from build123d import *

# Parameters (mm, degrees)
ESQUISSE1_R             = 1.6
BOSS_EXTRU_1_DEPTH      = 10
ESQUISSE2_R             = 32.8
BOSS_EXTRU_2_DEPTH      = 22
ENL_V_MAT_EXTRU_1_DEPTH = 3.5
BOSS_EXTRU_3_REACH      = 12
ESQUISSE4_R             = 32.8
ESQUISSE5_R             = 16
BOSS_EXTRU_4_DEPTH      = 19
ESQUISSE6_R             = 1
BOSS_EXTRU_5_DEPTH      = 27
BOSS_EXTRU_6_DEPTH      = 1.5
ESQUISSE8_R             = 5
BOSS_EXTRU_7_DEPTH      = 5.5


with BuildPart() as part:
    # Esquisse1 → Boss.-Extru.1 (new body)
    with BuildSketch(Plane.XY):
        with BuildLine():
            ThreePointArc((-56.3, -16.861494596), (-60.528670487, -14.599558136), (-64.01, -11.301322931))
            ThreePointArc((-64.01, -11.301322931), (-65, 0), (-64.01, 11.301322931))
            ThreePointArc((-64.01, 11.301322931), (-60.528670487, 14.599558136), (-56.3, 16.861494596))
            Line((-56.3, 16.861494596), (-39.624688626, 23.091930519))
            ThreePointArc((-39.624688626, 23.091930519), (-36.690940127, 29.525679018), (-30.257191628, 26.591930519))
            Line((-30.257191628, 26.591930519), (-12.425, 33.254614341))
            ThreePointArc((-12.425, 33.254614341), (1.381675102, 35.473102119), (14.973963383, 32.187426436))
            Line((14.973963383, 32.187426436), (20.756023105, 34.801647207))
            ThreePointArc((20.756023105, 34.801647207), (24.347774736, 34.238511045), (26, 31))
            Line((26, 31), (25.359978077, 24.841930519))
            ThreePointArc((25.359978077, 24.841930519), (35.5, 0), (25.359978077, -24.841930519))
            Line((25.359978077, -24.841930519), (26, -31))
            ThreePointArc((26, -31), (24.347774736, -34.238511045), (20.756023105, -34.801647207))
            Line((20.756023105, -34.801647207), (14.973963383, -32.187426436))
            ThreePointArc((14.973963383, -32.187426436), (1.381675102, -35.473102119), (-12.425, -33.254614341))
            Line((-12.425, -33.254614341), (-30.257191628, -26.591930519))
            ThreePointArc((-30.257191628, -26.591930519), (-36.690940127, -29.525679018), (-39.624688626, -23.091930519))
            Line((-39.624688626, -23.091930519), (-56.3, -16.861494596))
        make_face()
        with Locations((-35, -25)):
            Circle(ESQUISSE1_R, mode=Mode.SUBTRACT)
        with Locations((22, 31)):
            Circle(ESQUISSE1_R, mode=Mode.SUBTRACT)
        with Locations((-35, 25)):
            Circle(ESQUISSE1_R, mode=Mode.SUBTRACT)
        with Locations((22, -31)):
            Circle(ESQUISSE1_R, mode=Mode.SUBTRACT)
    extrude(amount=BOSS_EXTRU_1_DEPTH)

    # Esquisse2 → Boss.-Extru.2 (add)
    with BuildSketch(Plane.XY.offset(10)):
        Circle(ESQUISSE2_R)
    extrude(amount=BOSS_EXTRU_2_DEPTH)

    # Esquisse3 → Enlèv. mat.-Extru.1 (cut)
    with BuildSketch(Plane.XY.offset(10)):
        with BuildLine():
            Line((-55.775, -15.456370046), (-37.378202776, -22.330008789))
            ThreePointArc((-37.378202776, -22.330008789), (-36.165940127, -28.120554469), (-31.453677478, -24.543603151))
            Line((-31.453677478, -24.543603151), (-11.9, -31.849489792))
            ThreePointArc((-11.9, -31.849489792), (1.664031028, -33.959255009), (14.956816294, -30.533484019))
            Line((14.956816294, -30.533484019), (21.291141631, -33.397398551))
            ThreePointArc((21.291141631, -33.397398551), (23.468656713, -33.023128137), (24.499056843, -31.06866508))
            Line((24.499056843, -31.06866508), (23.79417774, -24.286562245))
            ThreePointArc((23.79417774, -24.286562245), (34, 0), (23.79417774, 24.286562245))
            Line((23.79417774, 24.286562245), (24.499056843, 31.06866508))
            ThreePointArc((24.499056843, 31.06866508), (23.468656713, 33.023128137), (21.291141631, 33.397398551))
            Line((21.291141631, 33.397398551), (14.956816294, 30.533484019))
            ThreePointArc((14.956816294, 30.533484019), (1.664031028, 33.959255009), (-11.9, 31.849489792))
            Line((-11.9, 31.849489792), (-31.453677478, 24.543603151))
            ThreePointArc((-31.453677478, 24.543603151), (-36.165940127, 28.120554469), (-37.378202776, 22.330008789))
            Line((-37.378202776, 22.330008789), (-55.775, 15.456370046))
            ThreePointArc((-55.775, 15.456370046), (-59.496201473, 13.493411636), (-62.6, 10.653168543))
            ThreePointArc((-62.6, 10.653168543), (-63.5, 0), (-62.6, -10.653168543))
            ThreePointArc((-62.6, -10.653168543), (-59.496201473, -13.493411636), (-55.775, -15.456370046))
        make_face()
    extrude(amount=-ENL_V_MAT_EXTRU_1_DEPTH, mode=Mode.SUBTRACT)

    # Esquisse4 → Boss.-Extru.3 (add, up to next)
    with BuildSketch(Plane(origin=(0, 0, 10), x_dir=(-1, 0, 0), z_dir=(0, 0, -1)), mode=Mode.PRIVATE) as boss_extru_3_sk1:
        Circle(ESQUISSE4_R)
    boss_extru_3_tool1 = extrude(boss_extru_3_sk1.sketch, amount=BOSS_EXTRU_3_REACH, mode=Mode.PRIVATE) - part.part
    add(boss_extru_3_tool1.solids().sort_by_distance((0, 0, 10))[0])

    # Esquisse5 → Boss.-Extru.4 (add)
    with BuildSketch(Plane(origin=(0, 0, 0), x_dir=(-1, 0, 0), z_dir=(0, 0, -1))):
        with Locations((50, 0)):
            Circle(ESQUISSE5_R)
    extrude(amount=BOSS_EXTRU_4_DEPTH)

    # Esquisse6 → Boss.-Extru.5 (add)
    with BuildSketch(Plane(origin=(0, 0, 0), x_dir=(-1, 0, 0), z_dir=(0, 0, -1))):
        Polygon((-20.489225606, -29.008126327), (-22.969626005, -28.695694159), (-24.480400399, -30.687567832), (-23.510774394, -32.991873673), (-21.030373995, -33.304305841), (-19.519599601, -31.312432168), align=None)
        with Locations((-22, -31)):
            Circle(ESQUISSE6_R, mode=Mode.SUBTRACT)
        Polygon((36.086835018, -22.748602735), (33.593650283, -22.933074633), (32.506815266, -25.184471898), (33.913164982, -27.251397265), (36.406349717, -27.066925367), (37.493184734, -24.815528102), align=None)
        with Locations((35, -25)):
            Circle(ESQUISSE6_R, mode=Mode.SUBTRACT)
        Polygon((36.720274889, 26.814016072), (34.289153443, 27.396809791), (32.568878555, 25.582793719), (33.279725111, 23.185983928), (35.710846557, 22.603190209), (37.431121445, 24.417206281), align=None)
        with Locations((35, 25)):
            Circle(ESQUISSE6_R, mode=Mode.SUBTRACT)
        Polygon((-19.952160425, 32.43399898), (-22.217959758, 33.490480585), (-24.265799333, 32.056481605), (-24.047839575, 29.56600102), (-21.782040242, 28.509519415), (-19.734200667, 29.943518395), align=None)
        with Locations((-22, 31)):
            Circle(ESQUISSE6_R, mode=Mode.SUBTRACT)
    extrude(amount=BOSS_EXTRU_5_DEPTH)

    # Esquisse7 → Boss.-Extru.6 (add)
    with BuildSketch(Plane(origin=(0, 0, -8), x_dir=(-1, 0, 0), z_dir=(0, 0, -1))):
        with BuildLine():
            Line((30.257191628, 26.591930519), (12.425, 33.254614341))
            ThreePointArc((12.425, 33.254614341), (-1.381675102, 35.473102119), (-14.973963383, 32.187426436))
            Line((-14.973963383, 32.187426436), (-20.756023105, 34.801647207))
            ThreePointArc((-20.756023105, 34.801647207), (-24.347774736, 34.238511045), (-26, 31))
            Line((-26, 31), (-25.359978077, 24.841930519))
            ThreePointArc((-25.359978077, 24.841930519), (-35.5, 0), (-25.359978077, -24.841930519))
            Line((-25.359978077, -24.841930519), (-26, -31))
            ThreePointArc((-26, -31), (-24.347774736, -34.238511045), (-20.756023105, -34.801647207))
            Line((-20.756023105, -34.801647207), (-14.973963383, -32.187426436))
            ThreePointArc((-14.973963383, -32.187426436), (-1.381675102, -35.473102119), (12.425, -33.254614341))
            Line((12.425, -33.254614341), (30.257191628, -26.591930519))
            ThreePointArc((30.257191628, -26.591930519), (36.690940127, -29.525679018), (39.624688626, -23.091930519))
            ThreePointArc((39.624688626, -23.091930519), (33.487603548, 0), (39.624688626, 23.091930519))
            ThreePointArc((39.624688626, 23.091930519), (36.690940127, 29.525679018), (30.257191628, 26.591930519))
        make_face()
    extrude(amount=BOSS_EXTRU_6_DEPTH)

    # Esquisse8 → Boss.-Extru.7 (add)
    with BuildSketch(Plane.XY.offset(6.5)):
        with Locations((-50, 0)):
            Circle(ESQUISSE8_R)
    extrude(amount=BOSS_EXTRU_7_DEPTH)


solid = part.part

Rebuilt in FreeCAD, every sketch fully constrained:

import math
import FreeCAD as App
import Part
import Sketcher
Q = App.Units.Quantity

doc = App.newDocument("Part")
params = doc.addObject("Spreadsheet::Sheet", "Params")
for row, (alias, value) in enumerate([
    ("sketch1_radius", "18 mm"),
    ("sketch1_radius2", "5 mm"),
    ("sketch1_radius3", "4 mm"),
    ("sketch1_radius4", "65 mm"),
    ("sketch1_diameter", "3.2 mm"),
    ("pad1_length", "10 mm"),
    ("sketch2_diameter", "65.6 mm"),
    ("pad2_length", "22 mm"),
    ("sketch3_radius", "34 mm"),
    ("sketch3_radius2", "3.5 mm"),
    ("sketch3_radius3", "2.5 mm"),
    ("sketch3_radius4", "16.5 mm"),
    ("sketch3_radius5", "63.5 mm"),
    ("pocket1_length", "3.5 mm"),
    ("sketch4_diameter", "65.6 mm"),
    ("sketch5_diameter", "32 mm"),
    ("pad4_length", "19 mm"),
    ("sketch6_diameter", "2 mm"),
    ("sketch6_length", "2.5 mm"),
    ("pad5_length", "27 mm"),
    ("sketch7_radius", "4 mm"),
    ("sketch7_radius2", "5 mm"),
    ("sketch7_radius3", "35.5 mm"),
    ("pad6_length", "1.5 mm"),
    ("sketch8_diameter", "10 mm"),
    ("pad7_length", "5.5 mm"),
], start=1):
    params.set(f"A{row}", alias)
    params.set(f"B{row}", "=" + value)
    params.setAlias(f"B{row}", alias)

body = doc.addObject("PartDesign::Body", "Body")
body.AllowCompound = True

# Sketch on XY plane
sketch1 = body.newObject("Sketcher::SketchObject", "Sketch")
sketch1.AttachmentSupport = (doc.getObject("XY_Plane"), [""])
sketch1.MapMode = "FlatFace"
sketch1.addGeometry([
    Part.ArcOfCircle(Part.Circle(App.Vector(-50, 0, 0), App.Vector(0, 0, 1), 18), math.radians(-141.108229), math.radians(-110.487315)),  # 0
    Part.LineSegment(App.Vector(-56.3, -16.861495, 0), App.Vector(-39.624689, -23.091931, 0)),  # 1
    Part.ArcOfCircle(Part.Circle(App.Vector(-34.94094, -24.841931, 0), App.Vector(0, 0, 1), 5), math.radians(159.512685), math.radians(339.512685)),  # 2
    Part.LineSegment(App.Vector(-30.257192, -26.591931, 0), App.Vector(-12.425, -33.254614, 0)),  # 3
    Part.ArcOfCircle(Part.Circle(App.Vector(0, 0, 0), App.Vector(0, 0, 1), 35.5), math.radians(-110.487315), math.radians(-65.051606)),  # 4
    Part.LineSegment(App.Vector(14.973963, -32.187426, 0), App.Vector(20.756023, -34.801647, 0)),  # 5
    Part.ArcOfCircle(Part.Circle(App.Vector(22, -31, 0), App.Vector(0, 0, 1), 4), math.radians(-108.119157), math.radians(0)),  # 6
    Part.LineSegment(App.Vector(26, -31, 0), App.Vector(25.359978, -24.841931, 0)),  # 7
    Part.ArcOfCircle(Part.Circle(App.Vector(0, 0, 0), App.Vector(0, 0, 1), 35.5), math.radians(-44.40877), math.radians(44.40877)),  # 8
    Part.LineSegment(App.Vector(25.359978, 24.841931, 0), App.Vector(26, 31, 0)),  # 9
    Part.ArcOfCircle(Part.Circle(App.Vector(22, 31, 0), App.Vector(0, 0, 1), 4), math.radians(0), math.radians(108.119157)),  # 10
    Part.LineSegment(App.Vector(20.756023, 34.801647, 0), App.Vector(14.973963, 32.187426, 0)),  # 11
    Part.ArcOfCircle(Part.Circle(App.Vector(0, 0, 0), App.Vector(0, 0, 1), 35.5), math.radians(65.051606), math.radians(110.487315)),  # 12
    Part.LineSegment(App.Vector(-12.425, 33.254614, 0), App.Vector(-30.257192, 26.591931, 0)),  # 13
    Part.ArcOfCircle(Part.Circle(App.Vector(-34.94094, 24.841931, 0), App.Vector(0, 0, 1), 5), math.radians(20.487315), math.radians(200.487315)),  # 14
    Part.LineSegment(App.Vector(-39.624689, 23.091931, 0), App.Vector(-56.3, 16.861495, 0)),  # 15
    Part.ArcOfCircle(Part.Circle(App.Vector(-50, 0, 0), App.Vector(0, 0, 1), 18), math.radians(110.487315), math.radians(141.108229)),  # 16
    Part.ArcOfCircle(Part.Circle(App.Vector(0, 0, 0), App.Vector(0, 0, 1), 65), math.radians(169.987297), math.radians(190.012703)),  # 17
    Part.Circle(App.Vector(22, -31, 0), App.Vector(0, 0, 1), 1.6),  # 18
    Part.Circle(App.Vector(-35, -25, 0), App.Vector(0, 0, 1), 1.6),  # 19
    Part.Circle(App.Vector(22, 31, 0), App.Vector(0, 0, 1), 1.6),  # 20
    Part.Circle(App.Vector(-35, 25, 0), App.Vector(0, 0, 1), 1.6),  # 21
], False)
sketch1.addConstraint([
    Sketcher.Constraint("Tangent", 0, 2, 1, 1),
    Sketcher.Constraint("Coincident", 1, 2, 2, 1),
    Sketcher.Constraint("Coincident", 2, 2, 3, 1),
    Sketcher.Constraint("Tangent", 3, 2, 4, 1),
    Sketcher.Constraint("Coincident", 4, 2, 5, 1),
    Sketcher.Constraint("Coincident", 5, 2, 6, 1),
    Sketcher.Constraint("Coincident", 6, 2, 7, 1),
    Sketcher.Constraint("Coincident", 7, 2, 8, 1),
    Sketcher.Constraint("Coincident", 8, 2, 9, 1),
    Sketcher.Constraint("Coincident", 9, 2, 10, 1),
    Sketcher.Constraint("Coincident", 10, 2, 11, 1),
    Sketcher.Constraint("Coincident", 11, 2, 12, 1),
    Sketcher.Constraint("Tangent", 12, 2, 13, 1),
    Sketcher.Constraint("Coincident", 13, 2, 14, 1),
    Sketcher.Constraint("Coincident", 14, 2, 15, 1),
    Sketcher.Constraint("Tangent", 15, 2, 16, 1),
    Sketcher.Constraint("Coincident", 16, 2, 17, 1),
    Sketcher.Constraint("Coincident", 17, 2, 0, 1),
    Sketcher.Constraint("Coincident", 4, 3, -1, 1),
    Sketcher.Constraint("Coincident", 8, 3, -1, 1),
    Sketcher.Constraint("Coincident", 12, 3, -1, 1),
    Sketcher.Constraint("Coincident", 17, 3, -1, 1),
    Sketcher.Constraint("Coincident", 16, 3, 0, 3),
    Sketcher.Constraint("Coincident", 18, 3, 6, 3),
    Sketcher.Constraint("Coincident", 20, 3, 10, 3),
    Sketcher.Constraint("Equal", 4, 8),
    Sketcher.Constraint("Equal", 6, 10),
    Sketcher.Constraint("Equal", 8, 12),
    Sketcher.Constraint("Equal", 2, 14),
    Sketcher.Constraint("Equal", 0, 16),
    Sketcher.Constraint("Equal", 18, 19),
    Sketcher.Constraint("Equal", 19, 20),
    Sketcher.Constraint("Equal", 20, 21),
    Sketcher.Constraint("Symmetric", 6, 3, 10, 3, -1),
    Sketcher.Constraint("Symmetric", 2, 3, 14, 3, -1),
    Sketcher.Constraint("Symmetric", 19, 3, 21, 3, -1),
    Sketcher.Constraint("Symmetric", 0, 2, 15, 2, -1),
    Sketcher.Constraint("Parallel", 1, 3),
    Sketcher.Constraint("Parallel", 13, 15),
    Sketcher.Constraint("Horizontal", 18, 3, 6, 2),
    Sketcher.Constraint("Horizontal", 2, 3, 7, 2),
    Sketcher.Constraint("Horizontal", 14, 3, 8, 2),
    Sketcher.Constraint("Horizontal", 20, 3, 9, 2),
    Sketcher.Constraint("Vertical", 5, 2, 10, 2),
    Sketcher.Constraint("Vertical", 4, 2, 11, 2),
    Sketcher.Constraint("Radius", 0, Q("18 mm")),
    Sketcher.Constraint("Radius", 2, Q("5 mm")),
    Sketcher.Constraint("Radius", 6, Q("4 mm")),
    Sketcher.Constraint("Radius", 17, Q("65 mm")),
    Sketcher.Constraint("Diameter", 18, Q("3.2 mm")),
    Sketcher.Constraint("Radius", 4, Q("35.5 mm")),
    Sketcher.Constraint("DistanceX", 0, 3, -1, 1, Q("50 mm")),
    Sketcher.Constraint("DistanceX", -1, 1, 6, 3, Q("22 mm")),
    Sketcher.Constraint("DistanceY", 6, 3, -1, 1, Q("31 mm")),
    Sketcher.Constraint("DistanceX", 19, 3, -1, 1, Q("35 mm")),
    Sketcher.Constraint("DistanceY", 19, 3, -1, 1, Q("25 mm")),
    Sketcher.Constraint("DistanceX", 0, 2, -1, 1, Q("56.3 mm")),
    Sketcher.Constraint("DistanceY", 2, 3, 1, 2, Q("1.75 mm")),
    Sketcher.Constraint("Distance", 3, Q("19.036239 mm")),
    Sketcher.Constraint("Distance", 5, Q("6.345578 mm")),
    Sketcher.Constraint("DistanceX", 4, 2, 5, 2, Q("5.78206 mm")),
])
sketch1.setExpression("Constraints[45]", "Params.sketch1_radius")
sketch1.setExpression("Constraints[46]", "Params.sketch1_radius2")
sketch1.setExpression("Constraints[47]", "Params.sketch1_radius3")
sketch1.setExpression("Constraints[48]", "Params.sketch1_radius4")
sketch1.setExpression("Constraints[49]", "Params.sketch1_diameter")
pad1 = body.newObject("PartDesign::Pad", "Pad")
pad1.Profile = sketch1
pad1.setExpression("Length", "Params.pad1_length")

# Sketch on XY plane
sketch2 = body.newObject("Sketcher::SketchObject", "Sketch001")
sketch2.AttachmentSupport = (doc.getObject("XY_Plane"), [""])
sketch2.MapMode = "FlatFace"
sketch2.AttachmentOffset = App.Placement(App.Vector(0, 0, 10), App.Rotation())
sketch2.addGeometry(Part.Circle(App.Vector(0, 0, 0), App.Vector(0, 0, 1), 32.8), False)
sketch2.addConstraint([
    Sketcher.Constraint("Coincident", 0, 3, -1, 1),
    Sketcher.Constraint("Diameter", 0, Q("65.6 mm")),
])
sketch2.setExpression("Constraints[1]", "Params.sketch2_diameter")
pad2 = body.newObject("PartDesign::Pad", "Pad001")
pad2.Profile = sketch2
pad2.setExpression("Length", "Params.pad2_length")

# Sketch on XY plane
sketch3 = body.newObject("Sketcher::SketchObject", "Sketch002")
sketch3.AttachmentSupport = (doc.getObject("XY_Plane"), [""])
sketch3.MapMode = "FlatFace"
sketch3.AttachmentOffset = App.Placement(App.Vector(0, 0, 10), App.Rotation())
sketch3.addGeometry([
    Part.LineSegment(App.Vector(-55.775, -15.45637, 0), App.Vector(-37.378203, -22.330009, 0)),  # 0
    Part.ArcOfCircle(Part.Circle(App.Vector(-34.94094, -24.841931, 0), App.Vector(0, 0, 1), 3.5), math.radians(134.135751), math.radians(364.889618)),  # 1
    Part.LineSegment(App.Vector(-31.453677, -24.543603, 0), App.Vector(-11.9, -31.84949, 0)),  # 2
    Part.ArcOfCircle(Part.Circle(App.Vector(0, 0, 0), App.Vector(0, 0, 1), 34), math.radians(-110.487315), math.radians(-63.902093)),  # 3
    Part.LineSegment(App.Vector(14.956816, -30.533484, 0), App.Vector(21.291142, -33.397399, 0)),  # 4
    Part.ArcOfCircle(Part.Circle(App.Vector(22, -31, 0), App.Vector(0, 0, 1), 2.5), math.radians(-106.471797), math.radians(-1.573886)),  # 5
    Part.LineSegment(App.Vector(24.499057, -31.068665, 0), App.Vector(23.794178, -24.286562, 0)),  # 6
    Part.ArcOfCircle(Part.Circle(App.Vector(0, 0, 0), App.Vector(0, 0, 1), 34), math.radians(-45.586733), math.radians(45.586733)),  # 7
    Part.LineSegment(App.Vector(23.794178, 24.286562, 0), App.Vector(24.499057, 31.068665, 0)),  # 8
    Part.ArcOfCircle(Part.Circle(App.Vector(22, 31, 0), App.Vector(0, 0, 1), 2.5), math.radians(1.573886), math.radians(106.471797)),  # 9
    Part.LineSegment(App.Vector(21.291142, 33.397399, 0), App.Vector(14.956816, 30.533484, 0)),  # 10
    Part.ArcOfCircle(Part.Circle(App.Vector(0, 0, 0), App.Vector(0, 0, 1), 34), math.radians(63.902093), math.radians(110.487315)),  # 11
    Part.LineSegment(App.Vector(-11.9, 31.84949, 0), App.Vector(-31.453677, 24.543603, 0)),  # 12
    Part.ArcOfCircle(Part.Circle(App.Vector(-34.94094, 24.841931, 0), App.Vector(0, 0, 1), 3.5), math.radians(-4.889618), math.radians(225.864249)),  # 13
    Part.LineSegment(App.Vector(-37.378203, 22.330009, 0), App.Vector(-55.775, 15.45637, 0)),  # 14
    Part.ArcOfCircle(Part.Circle(App.Vector(-50, 0, 0), App.Vector(0, 0, 1), 16.5), math.radians(110.487315), math.radians(139.785829)),  # 15
    Part.ArcOfCircle(Part.Circle(App.Vector(0, 0, 0), App.Vector(0, 0, 1), 63.5), math.radians(170.34202), math.radians(189.65798)),  # 16
    Part.ArcOfCircle(Part.Circle(App.Vector(-50, 0, 0), App.Vector(0, 0, 1), 16.5), math.radians(-139.785829), math.radians(-110.487315)),  # 17
], False)
sketch3.addConstraint([
    Sketcher.Constraint("Coincident", 0, 2, 1, 1),
    Sketcher.Constraint("Coincident", 1, 2, 2, 1),
    Sketcher.Constraint("Tangent", 2, 2, 3, 1),
    Sketcher.Constraint("Coincident", 3, 2, 4, 1),
    Sketcher.Constraint("Coincident", 4, 2, 5, 1),
    Sketcher.Constraint("Coincident", 5, 2, 6, 1),
    Sketcher.Constraint("Coincident", 6, 2, 7, 1),
    Sketcher.Constraint("Coincident", 7, 2, 8, 1),
    Sketcher.Constraint("Coincident", 8, 2, 9, 1),
    Sketcher.Constraint("Coincident", 9, 2, 10, 1),
    Sketcher.Constraint("Coincident", 10, 2, 11, 1),
    Sketcher.Constraint("Tangent", 11, 2, 12, 1),
    Sketcher.Constraint("Coincident", 12, 2, 13, 1),
    Sketcher.Constraint("Coincident", 13, 2, 14, 1),
    Sketcher.Constraint("Tangent", 14, 2, 15, 1),
    Sketcher.Constraint("Coincident", 15, 2, 16, 1),
    Sketcher.Constraint("Coincident", 16, 2, 17, 1),
    Sketcher.Constraint("Tangent", 17, 2, 0, 1),
    Sketcher.Constraint("Coincident", 3, 3, -1, 1),
    Sketcher.Constraint("Coincident", 7, 3, -1, 1),
    Sketcher.Constraint("Coincident", 11, 3, -1, 1),
    Sketcher.Constraint("Coincident", 16, 3, -1, 1),
    Sketcher.Constraint("Coincident", 17, 3, 15, 3),
    Sketcher.Constraint("Equal", 3, 7),
    Sketcher.Constraint("Equal", 5, 9),
    Sketcher.Constraint("Equal", 7, 11),
    Sketcher.Constraint("Equal", 1, 13),
    Sketcher.Constraint("Equal", 15, 17),
    Sketcher.Constraint("Symmetric", 5, 3, 9, 3, -1),
    Sketcher.Constraint("Symmetric", 1, 3, 13, 3, -1),
    Sketcher.Constraint("Symmetric", 14, 2, 17, 2, -1),
    Sketcher.Constraint("Parallel", 0, 2),
    Sketcher.Constraint("Parallel", 12, 14),
    Sketcher.Constraint("Vertical", 6, 2, 7, 2),
    Sketcher.Constraint("Vertical", 5, 2, 8, 2),
    Sketcher.Constraint("Vertical", 4, 2, 9, 2),
    Sketcher.Constraint("Vertical", 3, 2, 10, 2),
    Sketcher.Constraint("Radius", 3, Q("34 mm")),
    Sketcher.Constraint("Radius", 1, Q("3.5 mm")),
    Sketcher.Constraint("Radius", 5, Q("2.5 mm")),
    Sketcher.Constraint("Radius", 15, Q("16.5 mm")),
    Sketcher.Constraint("Radius", 16, Q("63.5 mm")),
    Sketcher.Constraint("DistanceX", -1, 1, 5, 3, Q("22 mm")),
    Sketcher.Constraint("DistanceY", 5, 3, -1, 1, Q("31 mm")),
    Sketcher.Constraint("DistanceX", 15, 3, -1, 1, Q("50 mm")),
    Sketcher.Constraint("DistanceX", 2, 2, -1, 1, Q("11.9 mm")),
    Sketcher.Constraint("DistanceY", 4, 2, -1, 1, Q("33.397399 mm")),
    Sketcher.Constraint("Distance", 2, Q("20.873962 mm")),
    Sketcher.Constraint("DistanceX", 1, 3, -1, 1, Q("34.94094 mm")),
    Sketcher.Constraint("DistanceX", 3, 2, 5, 2, Q("9.542241 mm")),
    Sketcher.Constraint("DistanceY", 5, 2, 3, 2, Q("0.535181 mm")),
    Sketcher.Constraint("DistanceX", 6, 2, 5, 2, Q("0.704879 mm")),
])
sketch3.setExpression("Constraints[37]", "Params.sketch3_radius")
sketch3.setExpression("Constraints[38]", "Params.sketch3_radius2")
sketch3.setExpression("Constraints[39]", "Params.sketch3_radius3")
sketch3.setExpression("Constraints[40]", "Params.sketch3_radius4")
sketch3.setExpression("Constraints[41]", "Params.sketch3_radius5")
pocket1 = body.newObject("PartDesign::Pocket", "Pocket")
pocket1.Profile = sketch3
pocket1.setExpression("Length", "Params.pocket1_length")

# Sketch on XY plane
sketch4 = body.newObject("Sketcher::SketchObject", "Sketch003")
sketch4.AttachmentSupport = (doc.getObject("XY_Plane"), [""])
sketch4.MapMode = "FlatFace"
sketch4.AttachmentOffset = App.Placement(App.Vector(0, 0, 10), App.Rotation())
sketch4.addGeometry(Part.Circle(App.Vector(0, 0, 0), App.Vector(0, 0, 1), 32.8), False)
sketch4.addConstraint([
    Sketcher.Constraint("Coincident", 0, 3, -1, 1),
    Sketcher.Constraint("Diameter", 0, Q("65.6 mm")),
])
sketch4.setExpression("Constraints[1]", "Params.sketch4_diameter")
pad3 = body.newObject("PartDesign::Pad", "Pad002")
pad3.Profile = sketch4
pad3.Type = "UpToFirst"
pad3.Reversed = True

# Sketch on XY plane
sketch5 = body.newObject("Sketcher::SketchObject", "Sketch004")
sketch5.AttachmentSupport = (doc.getObject("XY_Plane"), [""])
sketch5.MapMode = "FlatFace"
sketch5.addGeometry(Part.Circle(App.Vector(-50, 0, 0), App.Vector(0, 0, 1), 16), False)
sketch5.addConstraint([
    Sketcher.Constraint("PointOnObject", 0, 3, -1),
    Sketcher.Constraint("Diameter", 0, Q("32 mm")),
    Sketcher.Constraint("DistanceX", 0, 3, -1, 1, Q("50 mm")),
])
sketch5.setExpression("Constraints[1]", "Params.sketch5_diameter")
pad4 = body.newObject("PartDesign::Pad", "Pad003")
pad4.Profile = sketch5
pad4.setExpression("Length", "Params.pad4_length")
pad4.Reversed = True

# Sketch on XY plane
sketch6 = body.newObject("Sketcher::SketchObject", "Sketch005")
sketch6.AttachmentSupport = (doc.getObject("XY_Plane"), [""])
sketch6.MapMode = "FlatFace"
sketch6.addGeometry([
    Part.LineSegment(App.Vector(20.489226, -29.008126, 0), App.Vector(22.969626, -28.695694, 0)),  # 0
    Part.LineSegment(App.Vector(22.969626, -28.695694, 0), App.Vector(24.4804, -30.687568, 0)),  # 1
    Part.LineSegment(App.Vector(24.4804, -30.687568, 0), App.Vector(23.510774, -32.991874, 0)),  # 2
    Part.LineSegment(App.Vector(23.510774, -32.991874, 0), App.Vector(21.030374, -33.304306, 0)),  # 3
    Part.LineSegment(App.Vector(21.030374, -33.304306, 0), App.Vector(19.5196, -31.312432, 0)),  # 4
    Part.LineSegment(App.Vector(19.5196, -31.312432, 0), App.Vector(20.489226, -29.008126, 0)),  # 5
    Part.Circle(App.Vector(22, -31, 0), App.Vector(0, 0, 1), 1),  # 6
    Part.LineSegment(App.Vector(-36.086835, -22.748603, 0), App.Vector(-33.59365, -22.933075, 0)),  # 7
    Part.LineSegment(App.Vector(-33.59365, -22.933075, 0), App.Vector(-32.506815, -25.184472, 0)),  # 8
    Part.LineSegment(App.Vector(-32.506815, -25.184472, 0), App.Vector(-33.913165, -27.251397, 0)),  # 9
    Part.LineSegment(App.Vector(-33.913165, -27.251397, 0), App.Vector(-36.40635, -27.066925, 0)),  # 10
    Part.LineSegment(App.Vector(-36.40635, -27.066925, 0), App.Vector(-37.493185, -24.815528, 0)),  # 11
    Part.LineSegment(App.Vector(-37.493185, -24.815528, 0), App.Vector(-36.086835, -22.748603, 0)),  # 12
    Part.Circle(App.Vector(-35, -25, 0), App.Vector(0, 0, 1), 1),  # 13
    Part.LineSegment(App.Vector(-36.720275, 26.814016, 0), App.Vector(-34.289153, 27.39681, 0)),  # 14
    Part.LineSegment(App.Vector(-34.289153, 27.39681, 0), App.Vector(-32.568879, 25.582794, 0)),  # 15
    Part.LineSegment(App.Vector(-32.568879, 25.582794, 0), App.Vector(-33.279725, 23.185984, 0)),  # 16
    Part.LineSegment(App.Vector(-33.279725, 23.185984, 0), App.Vector(-35.710847, 22.60319, 0)),  # 17
    Part.LineSegment(App.Vector(-35.710847, 22.60319, 0), App.Vector(-37.431121, 24.417206, 0)),  # 18
    Part.LineSegment(App.Vector(-37.431121, 24.417206, 0), App.Vector(-36.720275, 26.814016, 0)),  # 19
    Part.Circle(App.Vector(-35, 25, 0), App.Vector(0, 0, 1), 1),  # 20
    Part.LineSegment(App.Vector(19.95216, 32.433999, 0), App.Vector(22.21796, 33.490481, 0)),  # 21
    Part.LineSegment(App.Vector(22.21796, 33.490481, 0), App.Vector(24.265799, 32.056482, 0)),  # 22
    Part.LineSegment(App.Vector(24.265799, 32.056482, 0), App.Vector(24.04784, 29.566001, 0)),  # 23
    Part.LineSegment(App.Vector(24.04784, 29.566001, 0), App.Vector(21.78204, 28.509519, 0)),  # 24
    Part.LineSegment(App.Vector(21.78204, 28.509519, 0), App.Vector(19.734201, 29.943518, 0)),  # 25
    Part.LineSegment(App.Vector(19.734201, 29.943518, 0), App.Vector(19.95216, 32.433999, 0)),  # 26
    Part.Circle(App.Vector(22, 31, 0), App.Vector(0, 0, 1), 1),  # 27
], False)
sketch6.addConstraint([
    Sketcher.Constraint("Coincident", 0, 2, 1, 1),
    Sketcher.Constraint("Coincident", 1, 2, 2, 1),
    Sketcher.Constraint("Coincident", 2, 2, 3, 1),
    Sketcher.Constraint("Coincident", 3, 2, 4, 1),
    Sketcher.Constraint("Coincident", 4, 2, 5, 1),
    Sketcher.Constraint("Coincident", 5, 2, 0, 1),
    Sketcher.Constraint("Coincident", 7, 2, 8, 1),
    Sketcher.Constraint("Coincident", 8, 2, 9, 1),
    Sketcher.Constraint("Coincident", 9, 2, 10, 1),
    Sketcher.Constraint("Coincident", 10, 2, 11, 1),
    Sketcher.Constraint("Coincident", 11, 2, 12, 1),
    Sketcher.Constraint("Coincident", 12, 2, 7, 1),
    Sketcher.Constraint("Coincident", 14, 2, 15, 1),
    Sketcher.Constraint("Coincident", 15, 2, 16, 1),
    Sketcher.Constraint("Coincident", 16, 2, 17, 1),
    Sketcher.Constraint("Coincident", 17, 2, 18, 1),
    Sketcher.Constraint("Coincident", 18, 2, 19, 1),
    Sketcher.Constraint("Coincident", 19, 2, 14, 1),
    Sketcher.Constraint("Coincident", 21, 2, 22, 1),
    Sketcher.Constraint("Coincident", 22, 2, 23, 1),
    Sketcher.Constraint("Coincident", 23, 2, 24, 1),
    Sketcher.Constraint("Coincident", 24, 2, 25, 1),
    Sketcher.Constraint("Coincident", 25, 2, 26, 1),
    Sketcher.Constraint("Coincident", 26, 2, 21, 1),
    Sketcher.Constraint("Equal", 6, 13),
    Sketcher.Constraint("Equal", 13, 20),
    Sketcher.Constraint("Equal", 20, 27),
    Sketcher.Constraint("Symmetric", 13, 3, 20, 3, -1),
    Sketcher.Constraint("Symmetric", 6, 3, 27, 3, -1),
    Sketcher.Constraint("Parallel", 0, 3),
    Sketcher.Constraint("Parallel", 1, 4),
    Sketcher.Constraint("Parallel", 2, 5),
    Sketcher.Constraint("Parallel", 7, 10),
    Sketcher.Constraint("Parallel", 8, 11),
    Sketcher.Constraint("Parallel", 9, 12),
    Sketcher.Constraint("Parallel", 14, 17),
    Sketcher.Constraint("Parallel", 15, 18),
    Sketcher.Constraint("Parallel", 16, 19),
    Sketcher.Constraint("Parallel", 21, 24),
    Sketcher.Constraint("Parallel", 22, 25),
    Sketcher.Constraint("Parallel", 23, 26),
    Sketcher.Constraint("Equal", 0, 1),
    Sketcher.Constraint("Equal", 1, 2),
    Sketcher.Constraint("Equal", 2, 3),
    Sketcher.Constraint("Equal", 5, 7),
    Sketcher.Constraint("Equal", 7, 8),
    Sketcher.Constraint("Equal", 8, 9),
    Sketcher.Constraint("Equal", 9, 10),
    Sketcher.Constraint("Equal", 12, 14),
    Sketcher.Constraint("Equal", 14, 15),
    Sketcher.Constraint("Equal", 15, 16),
    Sketcher.Constraint("Equal", 16, 17),
    Sketcher.Constraint("Equal", 19, 21),
    Sketcher.Constraint("Equal", 21, 22),
    Sketcher.Constraint("Equal", 22, 23),
    Sketcher.Constraint("Equal", 23, 24),
    Sketcher.Constraint("Diameter", 6, Q("2 mm")),
    Sketcher.Constraint("DistanceX", -1, 1, 6, 3, Q("22 mm")),
    Sketcher.Constraint("DistanceY", 6, 3, -1, 1, Q("31 mm")),
    Sketcher.Constraint("DistanceX", 13, 3, -1, 1, Q("35 mm")),
    Sketcher.Constraint("DistanceY", 13, 3, -1, 1, Q("25 mm")),
    Sketcher.Constraint("Distance", 0, Q("2.5 mm")),
    Sketcher.Constraint("DistanceY", -1, 1, 23, 2, Q("29.566001 mm")),
    Sketcher.Constraint("DistanceY", -1, 1, 26, 2, Q("32.433999 mm")),
    Sketcher.Constraint("DistanceY", 22, 2, 21, 2, Q("1.433999 mm")),
    Sketcher.Constraint("DistanceX", -1, 1, 1, 2, Q("24.4804 mm")),
    Sketcher.Constraint("DistanceX", -1, 1, 4, 2, Q("19.5196 mm")),
    Sketcher.Constraint("DistanceX", -1, 1, 22, 2, Q("24.265799 mm")),
    Sketcher.Constraint("DistanceX", -1, 1, 25, 2, Q("19.734201 mm")),
    Sketcher.Constraint("DistanceX", 3, 2, 2, 2, Q("2.4804 mm")),
    Sketcher.Constraint("DistanceX", 10, 2, 7, 2, Q("2.812699 mm")),
    Sketcher.Constraint("DistanceX", 7, 2, -1, 1, Q("33.59365 mm")),
    Sketcher.Constraint("DistanceY", 8, 2, -1, 1, Q("25.184472 mm")),
    Sketcher.Constraint("DistanceY", 11, 2, -1, 1, Q("24.815528 mm")),
    Sketcher.Constraint("DistanceY", -1, 1, 14, 2, Q("27.39681 mm")),
    Sketcher.Constraint("DistanceX", 15, 2, -1, 1, Q("32.568879 mm")),
    Sketcher.Constraint("DistanceY", -1, 1, 17, 2, Q("22.60319 mm")),
    Sketcher.Constraint("DistanceX", 18, 2, -1, 1, Q("37.431121 mm")),
    Sketcher.Constraint("DistanceX", 0, 2, 2, 2, Q("0.541148 mm")),
    Sketcher.Constraint("DistanceY", 5, 2, 7, 2, Q("6.075052 mm")),
    Sketcher.Constraint("DistanceY", 4, 2, 8, 2, Q("6.12796 mm")),
    Sketcher.Constraint("DistanceX", 12, 2, 14, 2, Q("1.797682 mm")),
])
sketch6.setExpression("Constraints[56]", "Params.sketch6_diameter")
sketch6.setExpression("Constraints[61]", "Params.sketch6_length")
pad5 = body.newObject("PartDesign::Pad", "Pad004")
pad5.Profile = sketch6
pad5.setExpression("Length", "Params.pad5_length")
pad5.Reversed = True

# Sketch on XY plane
sketch7 = body.newObject("Sketcher::SketchObject", "Sketch006")
sketch7.AttachmentSupport = (doc.getObject("XY_Plane"), [""])
sketch7.MapMode = "FlatFace"
sketch7.AttachmentOffset = App.Placement(App.Vector(0, 0, -8), App.Rotation())
sketch7.addGeometry([
    Part.LineSegment(App.Vector(-30.257192, 26.591931, 0), App.Vector(-12.425, 33.254614, 0)),  # 0
    Part.ArcOfCircle(Part.Circle(App.Vector(0, 0, 0), App.Vector(0, 0, 1), 35.5), math.radians(65.051606), math.radians(110.487315)),  # 1
    Part.LineSegment(App.Vector(14.973963, 32.187426, 0), App.Vector(20.756023, 34.801647, 0)),  # 2
    Part.ArcOfCircle(Part.Circle(App.Vector(22, 31, 0), App.Vector(0, 0, 1), 4), math.radians(0), math.radians(108.119157)),  # 3
    Part.LineSegment(App.Vector(26, 31, 0), App.Vector(25.359978, 24.841931, 0)),  # 4
    Part.ArcOfCircle(Part.Circle(App.Vector(0, 0, 0), App.Vector(0, 0, 1), 35.5), math.radians(-44.40877), math.radians(44.40877)),  # 5
    Part.LineSegment(App.Vector(25.359978, -24.841931, 0), App.Vector(26, -31, 0)),  # 6
    Part.ArcOfCircle(Part.Circle(App.Vector(22, -31, 0), App.Vector(0, 0, 1), 4), math.radians(-108.119157), math.radians(0)),  # 7
    Part.LineSegment(App.Vector(20.756023, -34.801647, 0), App.Vector(14.973963, -32.187426, 0)),  # 8
    Part.ArcOfCircle(Part.Circle(App.Vector(0, 0, 0), App.Vector(0, 0, 1), 35.5), math.radians(-110.487315), math.radians(-65.051606)),  # 9
    Part.LineSegment(App.Vector(-12.425, -33.254614, 0), App.Vector(-30.257192, -26.591931, 0)),  # 10
    Part.ArcOfCircle(Part.Circle(App.Vector(-34.94094, -24.841931, 0), App.Vector(0, 0, 1), 5), math.radians(159.512685), math.radians(339.512685)),  # 11
    Part.ArcOfCircle(Part.Circle(App.Vector(-80, 0, 0), App.Vector(0, 0, 1), 46.512396), math.radians(-29.766619), math.radians(29.766619)),  # 12
    Part.ArcOfCircle(Part.Circle(App.Vector(-34.94094, 24.841931, 0), App.Vector(0, 0, 1), 5), math.radians(20.487315), math.radians(200.487315)),  # 13
], False)
sketch7.addConstraint([
    Sketcher.Constraint("Tangent", 0, 2, 1, 2),
    Sketcher.Constraint("Coincident", 1, 1, 2, 1),
    Sketcher.Constraint("Coincident", 2, 2, 3, 2),
    Sketcher.Constraint("Coincident", 3, 1, 4, 1),
    Sketcher.Constraint("Coincident", 4, 2, 5, 2),
    Sketcher.Constraint("Coincident", 5, 1, 6, 1),
    Sketcher.Constraint("Coincident", 6, 2, 7, 2),
    Sketcher.Constraint("Coincident", 7, 1, 8, 1),
    Sketcher.Constraint("Coincident", 8, 2, 9, 2),
    Sketcher.Constraint("Tangent", 9, 1, 10, 1),
    Sketcher.Constraint("Coincident", 10, 2, 11, 2),
    Sketcher.Constraint("Coincident", 11, 1, 12, 1),
    Sketcher.Constraint("Coincident", 12, 2, 13, 2),
    Sketcher.Constraint("Coincident", 13, 1, 0, 1),
    Sketcher.Constraint("Coincident", 1, 3, -1, 1),
    Sketcher.Constraint("Coincident", 5, 3, -1, 1),
    Sketcher.Constraint("Coincident", 9, 3, -1, 1),
    Sketcher.Constraint("Equal", 1, 5),
    Sketcher.Constraint("Equal", 3, 7),
    Sketcher.Constraint("Equal", 5, 9),
    Sketcher.Constraint("Equal", 11, 13),
    Sketcher.Constraint("Symmetric", 3, 3, 7, 3, -1),
    Sketcher.Constraint("Symmetric", 11, 3, 13, 3, -1),
    Sketcher.Constraint("PointOnObject", 12, 3, -1),
    Sketcher.Constraint("Horizontal", 13, 3, 4, 2),
    Sketcher.Constraint("Horizontal", 11, 3, 5, 1),
    Sketcher.Constraint("Horizontal", 7, 3, 6, 2),
    Sketcher.Constraint("Vertical", 2, 2, 7, 1),
    Sketcher.Constraint("Vertical", 1, 1, 8, 2),
    Sketcher.Constraint("Vertical", 0, 2, 9, 1),
    Sketcher.Constraint("Equal", 4, 6),
    Sketcher.Constraint("Radius", 3, Q("4 mm")),
    Sketcher.Constraint("Radius", 11, Q("5 mm")),
    Sketcher.Constraint("Radius", 1, Q("35.5 mm")),
    Sketcher.Constraint("DistanceX", -1, 1, 3, 3, Q("22 mm")),
    Sketcher.Constraint("DistanceY", -1, 1, 3, 3, Q("31 mm")),
    Sketcher.Constraint("DistanceX", 12, 3, -1, 1, Q("80 mm")),
    Sketcher.Constraint("DistanceY", 10, 2, 11, 1, Q("3.5 mm")),
    Sketcher.Constraint("DistanceY", 10, 2, 11, 3, Q("1.75 mm")),
    Sketcher.Constraint("DistanceX", 0, 2, -1, 1, Q("12.425 mm")),
    Sketcher.Constraint("Radius", 12, Q("46.512396 mm")),
    Sketcher.Constraint("Distance", 2, Q("6.345578 mm")),
    Sketcher.Constraint("DistanceX", 1, 1, 2, 2, Q("5.78206 mm")),
])
sketch7.setExpression("Constraints[31]", "Params.sketch7_radius")
sketch7.setExpression("Constraints[32]", "Params.sketch7_radius2")
sketch7.setExpression("Constraints[33]", "Params.sketch7_radius3")
pad6 = body.newObject("PartDesign::Pad", "Pad005")
pad6.Profile = sketch7
pad6.setExpression("Length", "Params.pad6_length")
pad6.Reversed = True

# Sketch on XY plane
sketch8 = body.newObject("Sketcher::SketchObject", "Sketch007")
sketch8.AttachmentSupport = (doc.getObject("XY_Plane"), [""])
sketch8.MapMode = "FlatFace"
sketch8.AttachmentOffset = App.Placement(App.Vector(0, 0, 6.5), App.Rotation())
sketch8.addGeometry(Part.Circle(App.Vector(-50, 0, 0), App.Vector(0, 0, 1), 5), False)
sketch8.addConstraint([
    Sketcher.Constraint("PointOnObject", 0, 3, -1),
    Sketcher.Constraint("Diameter", 0, Q("10 mm")),
    Sketcher.Constraint("DistanceX", 0, 3, -1, 1, Q("50 mm")),
])
sketch8.setExpression("Constraints[1]", "Params.sketch8_diameter")
pad7 = body.newObject("PartDesign::Pad", "Pad006")
pad7.Profile = sketch8
pad7.setExpression("Length", "Params.pad7_length")

doc.recompute()
